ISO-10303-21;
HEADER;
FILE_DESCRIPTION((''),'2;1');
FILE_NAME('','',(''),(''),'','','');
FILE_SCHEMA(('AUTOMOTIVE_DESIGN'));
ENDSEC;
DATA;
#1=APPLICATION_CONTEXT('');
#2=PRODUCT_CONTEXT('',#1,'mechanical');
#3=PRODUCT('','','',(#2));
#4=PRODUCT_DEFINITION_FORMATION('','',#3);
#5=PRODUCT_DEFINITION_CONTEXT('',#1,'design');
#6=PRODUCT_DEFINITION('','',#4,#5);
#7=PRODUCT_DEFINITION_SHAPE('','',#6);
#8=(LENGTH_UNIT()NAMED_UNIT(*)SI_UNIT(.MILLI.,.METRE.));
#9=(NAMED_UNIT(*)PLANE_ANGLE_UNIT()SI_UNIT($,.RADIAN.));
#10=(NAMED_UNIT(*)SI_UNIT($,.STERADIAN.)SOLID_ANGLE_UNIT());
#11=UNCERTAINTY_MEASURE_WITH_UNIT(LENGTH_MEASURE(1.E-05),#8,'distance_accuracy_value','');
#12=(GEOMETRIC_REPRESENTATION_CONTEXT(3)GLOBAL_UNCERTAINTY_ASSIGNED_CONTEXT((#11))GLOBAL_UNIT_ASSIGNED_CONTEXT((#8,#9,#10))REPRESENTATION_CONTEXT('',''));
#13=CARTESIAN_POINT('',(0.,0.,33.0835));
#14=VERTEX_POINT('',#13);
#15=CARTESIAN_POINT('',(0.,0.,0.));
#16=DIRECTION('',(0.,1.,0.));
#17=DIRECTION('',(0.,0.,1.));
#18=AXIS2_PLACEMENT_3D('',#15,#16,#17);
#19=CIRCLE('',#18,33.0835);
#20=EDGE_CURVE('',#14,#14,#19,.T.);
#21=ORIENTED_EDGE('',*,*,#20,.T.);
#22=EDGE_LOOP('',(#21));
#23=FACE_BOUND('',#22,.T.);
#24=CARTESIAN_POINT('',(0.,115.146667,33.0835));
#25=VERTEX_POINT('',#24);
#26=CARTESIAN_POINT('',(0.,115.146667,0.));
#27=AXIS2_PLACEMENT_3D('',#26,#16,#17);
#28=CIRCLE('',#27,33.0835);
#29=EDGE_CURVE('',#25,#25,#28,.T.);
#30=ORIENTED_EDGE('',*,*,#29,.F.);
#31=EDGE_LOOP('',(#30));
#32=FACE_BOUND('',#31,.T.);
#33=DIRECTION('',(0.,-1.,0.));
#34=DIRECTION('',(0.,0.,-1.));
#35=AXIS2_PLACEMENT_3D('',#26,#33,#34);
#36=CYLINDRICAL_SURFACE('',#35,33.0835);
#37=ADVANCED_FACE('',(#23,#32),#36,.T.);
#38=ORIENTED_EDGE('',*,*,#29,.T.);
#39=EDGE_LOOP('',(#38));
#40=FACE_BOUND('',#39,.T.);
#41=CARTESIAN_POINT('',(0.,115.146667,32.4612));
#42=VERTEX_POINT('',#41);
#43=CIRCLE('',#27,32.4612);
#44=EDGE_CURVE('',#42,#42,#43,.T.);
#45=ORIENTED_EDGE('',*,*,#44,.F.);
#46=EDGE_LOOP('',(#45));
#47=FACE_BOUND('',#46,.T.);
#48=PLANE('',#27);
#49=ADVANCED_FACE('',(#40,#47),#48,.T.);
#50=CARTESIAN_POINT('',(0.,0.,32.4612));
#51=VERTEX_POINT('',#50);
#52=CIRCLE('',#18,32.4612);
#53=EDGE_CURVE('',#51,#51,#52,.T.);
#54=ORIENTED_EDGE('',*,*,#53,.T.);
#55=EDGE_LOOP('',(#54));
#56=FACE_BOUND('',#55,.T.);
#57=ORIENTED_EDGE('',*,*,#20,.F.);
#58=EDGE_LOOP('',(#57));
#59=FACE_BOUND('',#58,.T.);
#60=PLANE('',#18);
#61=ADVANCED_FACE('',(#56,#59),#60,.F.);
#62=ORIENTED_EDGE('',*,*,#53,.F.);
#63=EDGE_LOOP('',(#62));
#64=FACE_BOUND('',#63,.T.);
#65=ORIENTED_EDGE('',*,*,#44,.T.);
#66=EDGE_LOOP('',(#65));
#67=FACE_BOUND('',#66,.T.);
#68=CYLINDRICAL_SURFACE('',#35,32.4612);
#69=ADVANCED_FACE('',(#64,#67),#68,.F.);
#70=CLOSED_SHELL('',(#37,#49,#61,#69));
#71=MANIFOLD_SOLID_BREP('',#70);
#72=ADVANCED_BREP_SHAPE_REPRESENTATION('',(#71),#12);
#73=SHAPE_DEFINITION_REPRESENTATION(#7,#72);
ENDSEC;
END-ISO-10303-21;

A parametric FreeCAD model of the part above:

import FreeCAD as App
import Part
import Sketcher
Q = App.Units.Quantity

doc = App.newDocument("Part")
body = doc.addObject("PartDesign::Body", "Body")

# Sketch on XZ plane
sketch1 = body.newObject("Sketcher::SketchObject", "Sketch")
sketch1.AttachmentSupport = (doc.getObject("XZ_Plane"), [""])
sketch1.MapMode = "FlatFace"
sketch1.addGeometry([
    Part.Circle(App.Vector(0, 0, 0), App.Vector(0, 0, 1), 33),
    Part.Circle(App.Vector(0, 0, 0), App.Vector(0, 0, 1), 32),
], False)
sketch1.addConstraint([
    Sketcher.Constraint("Coincident", 0, 3, -1, 1),
    Sketcher.Constraint("Coincident", 1, 3, -1, 1),
    Sketcher.Constraint("Diameter", 0, Q("2.605 in")),
    Sketcher.Constraint("Diameter", 1, Q("2.556 in")),
])
pad1 = body.newObject("PartDesign::Pad", "Pad")
pad1.Profile = sketch1
pad1.Length = 115.146667
pad1.Reversed = True

doc.recompute()
